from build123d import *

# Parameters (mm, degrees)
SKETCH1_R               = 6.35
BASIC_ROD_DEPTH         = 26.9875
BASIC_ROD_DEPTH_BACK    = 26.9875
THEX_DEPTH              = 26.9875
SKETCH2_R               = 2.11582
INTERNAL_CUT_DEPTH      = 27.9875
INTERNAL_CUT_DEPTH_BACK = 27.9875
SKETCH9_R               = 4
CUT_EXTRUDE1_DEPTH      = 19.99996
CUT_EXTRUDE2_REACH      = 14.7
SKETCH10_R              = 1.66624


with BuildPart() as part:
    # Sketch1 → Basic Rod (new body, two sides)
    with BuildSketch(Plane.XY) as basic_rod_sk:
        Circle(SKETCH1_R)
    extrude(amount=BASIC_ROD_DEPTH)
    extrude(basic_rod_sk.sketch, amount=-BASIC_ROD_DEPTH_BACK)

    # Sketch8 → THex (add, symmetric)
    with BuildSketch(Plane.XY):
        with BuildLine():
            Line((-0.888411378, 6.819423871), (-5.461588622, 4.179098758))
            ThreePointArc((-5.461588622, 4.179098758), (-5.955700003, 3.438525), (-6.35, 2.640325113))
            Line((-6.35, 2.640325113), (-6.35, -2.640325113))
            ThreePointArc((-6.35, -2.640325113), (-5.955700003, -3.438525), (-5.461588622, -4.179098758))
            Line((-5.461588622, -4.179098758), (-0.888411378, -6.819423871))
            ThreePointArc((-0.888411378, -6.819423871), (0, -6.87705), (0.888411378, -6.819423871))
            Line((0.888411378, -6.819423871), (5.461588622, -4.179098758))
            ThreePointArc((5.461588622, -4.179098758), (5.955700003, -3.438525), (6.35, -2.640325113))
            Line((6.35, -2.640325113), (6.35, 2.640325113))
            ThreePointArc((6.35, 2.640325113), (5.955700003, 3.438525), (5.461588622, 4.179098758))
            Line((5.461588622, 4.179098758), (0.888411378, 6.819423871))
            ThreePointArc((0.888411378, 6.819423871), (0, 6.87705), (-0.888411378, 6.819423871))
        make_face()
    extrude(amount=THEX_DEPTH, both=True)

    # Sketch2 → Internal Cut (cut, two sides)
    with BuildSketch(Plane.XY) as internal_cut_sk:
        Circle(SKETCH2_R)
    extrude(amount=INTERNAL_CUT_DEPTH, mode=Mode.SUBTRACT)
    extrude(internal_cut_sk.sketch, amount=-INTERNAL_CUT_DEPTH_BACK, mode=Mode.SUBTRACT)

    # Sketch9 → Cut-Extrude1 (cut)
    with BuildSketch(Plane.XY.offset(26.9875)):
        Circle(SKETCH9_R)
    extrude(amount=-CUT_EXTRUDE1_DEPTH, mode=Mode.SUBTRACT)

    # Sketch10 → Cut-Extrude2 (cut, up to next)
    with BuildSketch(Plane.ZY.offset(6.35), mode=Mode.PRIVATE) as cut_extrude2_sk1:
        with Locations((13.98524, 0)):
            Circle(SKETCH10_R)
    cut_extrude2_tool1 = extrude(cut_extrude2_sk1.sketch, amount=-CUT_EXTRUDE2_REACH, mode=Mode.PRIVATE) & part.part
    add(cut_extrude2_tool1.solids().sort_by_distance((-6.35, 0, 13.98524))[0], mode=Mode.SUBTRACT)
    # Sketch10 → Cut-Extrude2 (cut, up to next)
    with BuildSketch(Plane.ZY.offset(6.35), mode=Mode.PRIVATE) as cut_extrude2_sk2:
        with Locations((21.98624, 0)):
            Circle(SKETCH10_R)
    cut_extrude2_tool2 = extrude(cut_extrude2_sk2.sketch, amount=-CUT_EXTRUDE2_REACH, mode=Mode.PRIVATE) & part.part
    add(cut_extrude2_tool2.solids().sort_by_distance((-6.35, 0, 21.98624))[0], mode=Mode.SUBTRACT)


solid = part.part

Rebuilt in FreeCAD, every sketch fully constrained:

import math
import FreeCAD as App
import Part
import Sketcher

V = App.Vector
Q = App.Units.Quantity

doc = App.newDocument("Part")
body = doc.addObject("PartDesign::Body", "Body")

sketch1 = doc.addObject("Sketcher::SketchObject", "Sketch")
body.addObject(sketch1)
sketch1.AttachmentSupport = (doc.XY_Plane, [""])
sketch1.MapMode = "FlatFace"
sketch1.addGeometry(Part.Circle(V(0, 0, 0), V(0, 0, 1), 6.35), False)
sketch1.addConstraint(Sketcher.Constraint("Coincident", 0, 3, -1, 1))
sketch1.addConstraint(Sketcher.Constraint("Diameter", 0, Q("0.5 in")))
pad1 = doc.addObject("PartDesign::Pad", "Pad")
body.addObject(pad1)
pad1.Profile = sketch1
pad1.Type = "TwoLengths"
pad1.Length = Q("1.0625 in")
pad1.Length2 = Q("1.0625 in")

sketch2 = doc.addObject("Sketcher::SketchObject", "Sketch001")
body.addObject(sketch2)
sketch2.AttachmentSupport = (doc.XY_Plane, [""])
sketch2.MapMode = "FlatFace"
sketch2.addGeometry(Part.LineSegment(V(-0.888411, 6.819424, 0), V(-5.461589, 4.179099, 0)), False)
sketch2.addGeometry(Part.ArcOfCircle(Part.Circle(V(0, 0, 0), V(0, 0, 1), 6.87705), math.radians(142.577504), math.radians(157.422496)), False)
sketch2.addGeometry(Part.LineSegment(V(-6.35, 2.640325, 0), V(-6.35, -2.640325, 0)), False)
sketch2.addGeometry(Part.ArcOfCircle(Part.Circle(V(0, 0, 0), V(0, 0, 1), 6.87705), math.radians(-157.422496), math.radians(-142.577504)), False)
sketch2.addGeometry(Part.LineSegment(V(-5.461589, -4.179099, 0), V(-0.888411, -6.819424, 0)), False)
sketch2.addGeometry(Part.ArcOfCircle(Part.Circle(V(0, 0, 0), V(0, 0, 1), 6.87705), math.radians(-97.422496), math.radians(-82.577504)), False)
sketch2.addGeometry(Part.LineSegment(V(0.888411, -6.819424, 0), V(5.461589, -4.179099, 0)), False)
sketch2.addGeometry(Part.ArcOfCircle(Part.Circle(V(0, 0, 0), V(0, 0, 1), 6.87705), math.radians(-37.422496), math.radians(-22.577504)), False)
sketch2.addGeometry(Part.LineSegment(V(6.35, -2.640325, 0), V(6.35, 2.640325, 0)), False)
sketch2.addGeometry(Part.ArcOfCircle(Part.Circle(V(0, 0, 0), V(0, 0, 1), 6.87705), math.radians(22.577504), math.radians(37.422496)), False)
sketch2.addGeometry(Part.LineSegment(V(5.461589, 4.179099, 0), V(0.888411, 6.819424, 0)), False)
sketch2.addGeometry(Part.ArcOfCircle(Part.Circle(V(0, 0, 0), V(0, 0, 1), 6.87705), math.radians(82.577504), math.radians(97.422496)), False)
sketch2.addConstraint(Sketcher.Constraint("Coincident", 0, 2, 1, 1))
sketch2.addConstraint(Sketcher.Constraint("Coincident", 1, 2, 2, 1))
sketch2.addConstraint(Sketcher.Constraint("Coincident", 2, 2, 3, 1))
sketch2.addConstraint(Sketcher.Constraint("Coincident", 3, 2, 4, 1))
sketch2.addConstraint(Sketcher.Constraint("Coincident", 4, 2, 5, 1))
sketch2.addConstraint(Sketcher.Constraint("Coincident", 5, 2, 6, 1))
sketch2.addConstraint(Sketcher.Constraint("Coincident", 6, 2, 7, 1))
sketch2.addConstraint(Sketcher.Constraint("Coincident", 7, 2, 8, 1))
sketch2.addConstraint(Sketcher.Constraint("Coincident", 8, 2, 9, 1))
sketch2.addConstraint(Sketcher.Constraint("Coincident", 9, 2, 10, 1))
sketch2.addConstraint(Sketcher.Constraint("Coincident", 10, 2, 11, 1))
sketch2.addConstraint(Sketcher.Constraint("Coincident", 11, 2, 0, 1))
sketch2.addConstraint(Sketcher.Constraint("Vertical", 2))
sketch2.addConstraint(Sketcher.Constraint("Vertical", 8))
sketch2.addConstraint(Sketcher.Constraint("Coincident", 1, 3, -1, 1))
sketch2.addConstraint(Sketcher.Constraint("Coincident", 3, 3, -1, 1))
sketch2.addConstraint(Sketcher.Constraint("Coincident", 5, 3, -1, 1))
sketch2.addConstraint(Sketcher.Constraint("Coincident", 7, 3, -1, 1))
sketch2.addConstraint(Sketcher.Constraint("Coincident", 9, 3, -1, 1))
sketch2.addConstraint(Sketcher.Constraint("Coincident", 11, 3, -1, 1))
sketch2.addConstraint(Sketcher.Constraint("Equal", 1, 3))
sketch2.addConstraint(Sketcher.Constraint("Equal", 3, 5))
sketch2.addConstraint(Sketcher.Constraint("Equal", 5, 7))
sketch2.addConstraint(Sketcher.Constraint("Equal", 7, 9))
sketch2.addConstraint(Sketcher.Constraint("Equal", 9, 11))
sketch2.addConstraint(Sketcher.Constraint("Parallel", 0, 6))
sketch2.addConstraint(Sketcher.Constraint("Parallel", 4, 10))
sketch2.addConstraint(Sketcher.Constraint("Horizontal", 4, 2, 5, 2))
sketch2.addConstraint(Sketcher.Constraint("Horizontal", 3, 2, 6, 2))
sketch2.addConstraint(Sketcher.Constraint("Horizontal", 2, 2, 7, 2))
sketch2.addConstraint(Sketcher.Constraint("Horizontal", 0, 2, 9, 2))
sketch2.addConstraint(Sketcher.Constraint("Vertical", 0, 2, 3, 2))
sketch2.addConstraint(Sketcher.Constraint("Angle", 0, Q("-150 deg")))
sketch2.addConstraint(Sketcher.Constraint("DistanceX", 1, 2, -1, 1, Q("0.25 in")))
sketch2.addConstraint(Sketcher.Constraint("DistanceX", 3, 2, 5, 2, Q("0.25 in")))
sketch2.addConstraint(Sketcher.Constraint("Radius", 1, 6.87705))
pad2 = doc.addObject("PartDesign::Pad", "Pad001")
body.addObject(pad2)
pad2.Profile = sketch2
pad2.Length = Q("2.125 in")
pad2.Midplane = True

sketch3 = doc.addObject("Sketcher::SketchObject", "Sketch002")
body.addObject(sketch3)
sketch3.AttachmentSupport = (doc.XY_Plane, [""])
sketch3.MapMode = "FlatFace"
sketch3.addGeometry(Part.Circle(V(0, 0, 0), V(0, 0, 1), 2.11582), False)
sketch3.addConstraint(Sketcher.Constraint("Coincident", 0, 3, -1, 1))
sketch3.addConstraint(Sketcher.Constraint("Diameter", 0, Q("0.1666 in")))
pocket1 = doc.addObject("PartDesign::Pocket", "Pocket")
body.addObject(pocket1)
pocket1.Profile = sketch3
pocket1.Type = "ThroughAll"
pocket1.Midplane = True

sketch4 = doc.addObject("Sketcher::SketchObject", "Sketch003")
body.addObject(sketch4)
sketch4.AttachmentSupport = (doc.XY_Plane, [""])
sketch4.MapMode = "FlatFace"
sketch4.AttachmentOffset = App.Placement(V(0, 0, 1.0625 * 25.4), App.Rotation())
sketch4.addGeometry(Part.Circle(V(0, 0, 0), V(0, 0, 1), 4), False)
sketch4.addConstraint(Sketcher.Constraint("Coincident", 0, 3, -1, 1))
sketch4.addConstraint(Sketcher.Constraint("Diameter", 0, 8.0))
pocket2 = doc.addObject("PartDesign::Pocket", "Pocket001")
body.addObject(pocket2)
pocket2.Profile = sketch4
pocket2.Length = Q("0.7874 in")

sketch5 = doc.addObject("Sketcher::SketchObject", "Sketch004")
body.addObject(sketch5)
sketch5.AttachmentSupport = (doc.YZ_Plane, [""])
sketch5.MapMode = "FlatFace"
sketch5.AttachmentOffset = App.Placement(V(0, 0, -0.25 * 25.4), App.Rotation())
sketch5.addGeometry(Part.Circle(V(0, 13.98524, 0), V(0, 0, 1), 1.66624), False)
sketch5.addConstraint(Sketcher.Constraint("PointOnObject", 0, 3, -2))
sketch5.addConstraint(Sketcher.Constraint("Diameter", 0, Q("0.1312 in")))
sketch5.addConstraint(Sketcher.Constraint("DistanceY", -1, 1, 0, 3, Q("0.5506 in")))
pocket3 = doc.addObject("PartDesign::Pocket", "Pocket002")
body.addObject(pocket3)
pocket3.Profile = sketch5
pocket3.Type = "UpToFirst"
pocket3.Reversed = True

sketch6 = doc.addObject("Sketcher::SketchObject", "Sketch005")
body.addObject(sketch6)
sketch6.AttachmentSupport = (doc.YZ_Plane, [""])
sketch6.MapMode = "FlatFace"
sketch6.AttachmentOffset = App.Placement(V(0, 0, -0.25 * 25.4), App.Rotation())
sketch6.addGeometry(Part.Circle(V(0, 21.98624, 0), V(0, 0, 1), 1.66624), False)
sketch6.addConstraint(Sketcher.Constraint("PointOnObject", 0, 3, -2))
sketch6.addConstraint(Sketcher.Constraint("Diameter", 0, Q("0.1312 in")))
sketch6.addConstraint(Sketcher.Constraint("DistanceY", -1, 1, 0, 3, Q("0.8656 in")))
pocket4 = doc.addObject("PartDesign::Pocket", "Pocket003")
body.addObject(pocket4)
pocket4.Profile = sketch6
pocket4.Type = "UpToFirst"
pocket4.Reversed = True

doc.recompute()
